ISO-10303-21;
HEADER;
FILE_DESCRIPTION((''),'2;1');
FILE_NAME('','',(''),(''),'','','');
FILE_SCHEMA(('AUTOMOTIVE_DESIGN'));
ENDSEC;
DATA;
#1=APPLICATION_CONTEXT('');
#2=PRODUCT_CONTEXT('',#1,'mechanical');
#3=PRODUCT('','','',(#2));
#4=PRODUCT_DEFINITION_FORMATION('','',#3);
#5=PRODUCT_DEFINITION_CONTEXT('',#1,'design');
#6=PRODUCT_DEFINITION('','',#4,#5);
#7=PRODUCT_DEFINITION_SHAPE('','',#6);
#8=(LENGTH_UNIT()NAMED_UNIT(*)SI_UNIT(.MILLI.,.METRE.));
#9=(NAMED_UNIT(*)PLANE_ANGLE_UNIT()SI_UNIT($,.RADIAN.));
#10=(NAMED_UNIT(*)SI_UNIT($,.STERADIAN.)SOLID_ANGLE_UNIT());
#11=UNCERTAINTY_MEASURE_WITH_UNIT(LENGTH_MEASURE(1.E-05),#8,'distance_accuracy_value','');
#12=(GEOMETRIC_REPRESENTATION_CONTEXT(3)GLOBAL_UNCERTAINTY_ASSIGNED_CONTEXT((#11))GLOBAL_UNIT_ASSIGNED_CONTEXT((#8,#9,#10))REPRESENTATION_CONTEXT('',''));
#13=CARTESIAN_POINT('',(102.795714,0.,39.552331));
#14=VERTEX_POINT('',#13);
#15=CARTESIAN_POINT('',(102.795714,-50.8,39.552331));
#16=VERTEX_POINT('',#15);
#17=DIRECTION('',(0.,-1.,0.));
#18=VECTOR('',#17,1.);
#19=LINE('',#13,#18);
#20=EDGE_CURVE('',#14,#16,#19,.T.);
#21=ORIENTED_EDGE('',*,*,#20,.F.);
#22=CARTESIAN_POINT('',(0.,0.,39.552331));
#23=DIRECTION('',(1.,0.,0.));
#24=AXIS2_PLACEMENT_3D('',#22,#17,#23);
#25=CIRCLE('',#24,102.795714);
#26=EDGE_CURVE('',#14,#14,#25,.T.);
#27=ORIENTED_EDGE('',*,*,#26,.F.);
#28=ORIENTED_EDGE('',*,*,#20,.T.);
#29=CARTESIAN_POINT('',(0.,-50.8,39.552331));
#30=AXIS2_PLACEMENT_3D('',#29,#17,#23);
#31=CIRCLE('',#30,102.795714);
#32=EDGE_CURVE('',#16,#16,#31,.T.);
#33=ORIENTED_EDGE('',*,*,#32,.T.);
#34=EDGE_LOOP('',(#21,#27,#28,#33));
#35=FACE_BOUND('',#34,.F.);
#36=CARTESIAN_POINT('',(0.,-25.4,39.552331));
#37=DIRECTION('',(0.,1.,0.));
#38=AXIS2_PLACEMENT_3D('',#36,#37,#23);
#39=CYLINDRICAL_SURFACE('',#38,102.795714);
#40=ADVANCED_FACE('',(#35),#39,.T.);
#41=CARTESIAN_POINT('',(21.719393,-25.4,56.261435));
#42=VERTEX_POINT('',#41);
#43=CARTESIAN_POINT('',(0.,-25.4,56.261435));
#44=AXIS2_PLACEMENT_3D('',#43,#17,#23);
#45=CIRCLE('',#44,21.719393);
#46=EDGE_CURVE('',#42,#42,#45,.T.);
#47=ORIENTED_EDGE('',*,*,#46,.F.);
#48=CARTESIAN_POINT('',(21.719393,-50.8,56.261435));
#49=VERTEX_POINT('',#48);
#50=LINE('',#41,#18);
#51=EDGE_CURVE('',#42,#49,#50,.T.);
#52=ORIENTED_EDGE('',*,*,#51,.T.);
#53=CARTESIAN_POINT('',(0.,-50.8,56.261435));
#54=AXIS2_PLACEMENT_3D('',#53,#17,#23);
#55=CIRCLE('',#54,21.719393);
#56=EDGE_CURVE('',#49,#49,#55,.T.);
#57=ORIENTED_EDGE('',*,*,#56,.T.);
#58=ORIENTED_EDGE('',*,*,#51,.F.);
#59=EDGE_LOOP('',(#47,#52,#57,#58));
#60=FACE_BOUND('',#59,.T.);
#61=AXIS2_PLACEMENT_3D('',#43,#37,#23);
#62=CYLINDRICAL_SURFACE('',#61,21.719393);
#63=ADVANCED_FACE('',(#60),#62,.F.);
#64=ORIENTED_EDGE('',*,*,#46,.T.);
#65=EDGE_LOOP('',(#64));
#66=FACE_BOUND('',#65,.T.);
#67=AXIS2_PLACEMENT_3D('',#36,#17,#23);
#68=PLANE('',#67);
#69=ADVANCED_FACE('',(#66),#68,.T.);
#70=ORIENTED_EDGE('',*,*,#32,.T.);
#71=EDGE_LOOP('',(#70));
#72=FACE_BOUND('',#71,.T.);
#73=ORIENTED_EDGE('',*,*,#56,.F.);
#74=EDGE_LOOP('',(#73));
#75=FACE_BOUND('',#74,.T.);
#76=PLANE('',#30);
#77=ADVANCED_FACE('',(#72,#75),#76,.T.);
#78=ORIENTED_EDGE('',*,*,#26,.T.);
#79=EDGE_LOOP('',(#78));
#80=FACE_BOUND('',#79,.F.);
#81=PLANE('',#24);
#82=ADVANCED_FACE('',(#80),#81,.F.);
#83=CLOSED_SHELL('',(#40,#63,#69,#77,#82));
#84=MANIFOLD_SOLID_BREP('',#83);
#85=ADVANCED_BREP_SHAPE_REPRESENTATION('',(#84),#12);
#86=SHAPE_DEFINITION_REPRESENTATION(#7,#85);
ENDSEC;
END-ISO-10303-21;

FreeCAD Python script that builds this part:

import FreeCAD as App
import Part
import Sketcher
from FreeCAD import Vector
Q = App.Units.Quantity

doc = App.newDocument("Part")
body = doc.addObject("PartDesign::Body", "Body")

# Sketch on XZ plane
sketch1 = doc.addObject("Sketcher::SketchObject", "Sketch")
body.addObject(sketch1)
sketch1.AttachmentSupport = (doc.XZ_Plane, [""])
sketch1.MapMode = "FlatFace"
sketch1.addGeometry(Part.Circle(Vector(0, 40, 0), Vector(0, 0, 1), 103), False)
sketch1.addConstraint(Sketcher.Constraint("PointOnObject", 0, 3, -2))
sketch1.addConstraint(Sketcher.Constraint("Diameter", 0, 205.591428))
sketch1.addConstraint(Sketcher.Constraint("DistanceY", -1, 1, 0, 3, 39.552331))
pad1 = doc.addObject("PartDesign::Pad", "Pad")
body.addObject(pad1)
pad1.Profile = sketch1
pad1.Length = Q("1 in")

# Sketch on XZ plane
sketch2 = doc.addObject("Sketcher::SketchObject", "Sketch001")
body.addObject(sketch2)
sketch2.AttachmentSupport = (doc.XZ_Plane, [""])
sketch2.MapMode = "FlatFace"
sketch2.AttachmentOffset = App.Placement(Vector(0, 0, 1 * 25.4), App.Rotation())
sketch2.addGeometry(Part.Circle(Vector(0, 40, 0), Vector(0, 0, 1), 103), False)
sketch2.addGeometry(Part.Circle(Vector(0, 56, 0), Vector(0, 0, 1), 22), False)
sketch2.addConstraint(Sketcher.Constraint("PointOnObject", 0, 3, -2))
sketch2.addConstraint(Sketcher.Constraint("PointOnObject", 1, 3, -2))
sketch2.addConstraint(Sketcher.Constraint("Diameter", 0, 205.591428))
sketch2.addConstraint(Sketcher.Constraint("Diameter", 1, 43.438786))
sketch2.addConstraint(Sketcher.Constraint("DistanceY", -1, 1, 0, 3, 39.552331))
sketch2.addConstraint(Sketcher.Constraint("DistanceY", -1, 1, 1, 3, 56.261435))
pad2 = doc.addObject("PartDesign::Pad", "Pad001")
body.addObject(pad2)
pad2.Profile = sketch2
pad2.Length = Q("1 in")

doc.recompute()
